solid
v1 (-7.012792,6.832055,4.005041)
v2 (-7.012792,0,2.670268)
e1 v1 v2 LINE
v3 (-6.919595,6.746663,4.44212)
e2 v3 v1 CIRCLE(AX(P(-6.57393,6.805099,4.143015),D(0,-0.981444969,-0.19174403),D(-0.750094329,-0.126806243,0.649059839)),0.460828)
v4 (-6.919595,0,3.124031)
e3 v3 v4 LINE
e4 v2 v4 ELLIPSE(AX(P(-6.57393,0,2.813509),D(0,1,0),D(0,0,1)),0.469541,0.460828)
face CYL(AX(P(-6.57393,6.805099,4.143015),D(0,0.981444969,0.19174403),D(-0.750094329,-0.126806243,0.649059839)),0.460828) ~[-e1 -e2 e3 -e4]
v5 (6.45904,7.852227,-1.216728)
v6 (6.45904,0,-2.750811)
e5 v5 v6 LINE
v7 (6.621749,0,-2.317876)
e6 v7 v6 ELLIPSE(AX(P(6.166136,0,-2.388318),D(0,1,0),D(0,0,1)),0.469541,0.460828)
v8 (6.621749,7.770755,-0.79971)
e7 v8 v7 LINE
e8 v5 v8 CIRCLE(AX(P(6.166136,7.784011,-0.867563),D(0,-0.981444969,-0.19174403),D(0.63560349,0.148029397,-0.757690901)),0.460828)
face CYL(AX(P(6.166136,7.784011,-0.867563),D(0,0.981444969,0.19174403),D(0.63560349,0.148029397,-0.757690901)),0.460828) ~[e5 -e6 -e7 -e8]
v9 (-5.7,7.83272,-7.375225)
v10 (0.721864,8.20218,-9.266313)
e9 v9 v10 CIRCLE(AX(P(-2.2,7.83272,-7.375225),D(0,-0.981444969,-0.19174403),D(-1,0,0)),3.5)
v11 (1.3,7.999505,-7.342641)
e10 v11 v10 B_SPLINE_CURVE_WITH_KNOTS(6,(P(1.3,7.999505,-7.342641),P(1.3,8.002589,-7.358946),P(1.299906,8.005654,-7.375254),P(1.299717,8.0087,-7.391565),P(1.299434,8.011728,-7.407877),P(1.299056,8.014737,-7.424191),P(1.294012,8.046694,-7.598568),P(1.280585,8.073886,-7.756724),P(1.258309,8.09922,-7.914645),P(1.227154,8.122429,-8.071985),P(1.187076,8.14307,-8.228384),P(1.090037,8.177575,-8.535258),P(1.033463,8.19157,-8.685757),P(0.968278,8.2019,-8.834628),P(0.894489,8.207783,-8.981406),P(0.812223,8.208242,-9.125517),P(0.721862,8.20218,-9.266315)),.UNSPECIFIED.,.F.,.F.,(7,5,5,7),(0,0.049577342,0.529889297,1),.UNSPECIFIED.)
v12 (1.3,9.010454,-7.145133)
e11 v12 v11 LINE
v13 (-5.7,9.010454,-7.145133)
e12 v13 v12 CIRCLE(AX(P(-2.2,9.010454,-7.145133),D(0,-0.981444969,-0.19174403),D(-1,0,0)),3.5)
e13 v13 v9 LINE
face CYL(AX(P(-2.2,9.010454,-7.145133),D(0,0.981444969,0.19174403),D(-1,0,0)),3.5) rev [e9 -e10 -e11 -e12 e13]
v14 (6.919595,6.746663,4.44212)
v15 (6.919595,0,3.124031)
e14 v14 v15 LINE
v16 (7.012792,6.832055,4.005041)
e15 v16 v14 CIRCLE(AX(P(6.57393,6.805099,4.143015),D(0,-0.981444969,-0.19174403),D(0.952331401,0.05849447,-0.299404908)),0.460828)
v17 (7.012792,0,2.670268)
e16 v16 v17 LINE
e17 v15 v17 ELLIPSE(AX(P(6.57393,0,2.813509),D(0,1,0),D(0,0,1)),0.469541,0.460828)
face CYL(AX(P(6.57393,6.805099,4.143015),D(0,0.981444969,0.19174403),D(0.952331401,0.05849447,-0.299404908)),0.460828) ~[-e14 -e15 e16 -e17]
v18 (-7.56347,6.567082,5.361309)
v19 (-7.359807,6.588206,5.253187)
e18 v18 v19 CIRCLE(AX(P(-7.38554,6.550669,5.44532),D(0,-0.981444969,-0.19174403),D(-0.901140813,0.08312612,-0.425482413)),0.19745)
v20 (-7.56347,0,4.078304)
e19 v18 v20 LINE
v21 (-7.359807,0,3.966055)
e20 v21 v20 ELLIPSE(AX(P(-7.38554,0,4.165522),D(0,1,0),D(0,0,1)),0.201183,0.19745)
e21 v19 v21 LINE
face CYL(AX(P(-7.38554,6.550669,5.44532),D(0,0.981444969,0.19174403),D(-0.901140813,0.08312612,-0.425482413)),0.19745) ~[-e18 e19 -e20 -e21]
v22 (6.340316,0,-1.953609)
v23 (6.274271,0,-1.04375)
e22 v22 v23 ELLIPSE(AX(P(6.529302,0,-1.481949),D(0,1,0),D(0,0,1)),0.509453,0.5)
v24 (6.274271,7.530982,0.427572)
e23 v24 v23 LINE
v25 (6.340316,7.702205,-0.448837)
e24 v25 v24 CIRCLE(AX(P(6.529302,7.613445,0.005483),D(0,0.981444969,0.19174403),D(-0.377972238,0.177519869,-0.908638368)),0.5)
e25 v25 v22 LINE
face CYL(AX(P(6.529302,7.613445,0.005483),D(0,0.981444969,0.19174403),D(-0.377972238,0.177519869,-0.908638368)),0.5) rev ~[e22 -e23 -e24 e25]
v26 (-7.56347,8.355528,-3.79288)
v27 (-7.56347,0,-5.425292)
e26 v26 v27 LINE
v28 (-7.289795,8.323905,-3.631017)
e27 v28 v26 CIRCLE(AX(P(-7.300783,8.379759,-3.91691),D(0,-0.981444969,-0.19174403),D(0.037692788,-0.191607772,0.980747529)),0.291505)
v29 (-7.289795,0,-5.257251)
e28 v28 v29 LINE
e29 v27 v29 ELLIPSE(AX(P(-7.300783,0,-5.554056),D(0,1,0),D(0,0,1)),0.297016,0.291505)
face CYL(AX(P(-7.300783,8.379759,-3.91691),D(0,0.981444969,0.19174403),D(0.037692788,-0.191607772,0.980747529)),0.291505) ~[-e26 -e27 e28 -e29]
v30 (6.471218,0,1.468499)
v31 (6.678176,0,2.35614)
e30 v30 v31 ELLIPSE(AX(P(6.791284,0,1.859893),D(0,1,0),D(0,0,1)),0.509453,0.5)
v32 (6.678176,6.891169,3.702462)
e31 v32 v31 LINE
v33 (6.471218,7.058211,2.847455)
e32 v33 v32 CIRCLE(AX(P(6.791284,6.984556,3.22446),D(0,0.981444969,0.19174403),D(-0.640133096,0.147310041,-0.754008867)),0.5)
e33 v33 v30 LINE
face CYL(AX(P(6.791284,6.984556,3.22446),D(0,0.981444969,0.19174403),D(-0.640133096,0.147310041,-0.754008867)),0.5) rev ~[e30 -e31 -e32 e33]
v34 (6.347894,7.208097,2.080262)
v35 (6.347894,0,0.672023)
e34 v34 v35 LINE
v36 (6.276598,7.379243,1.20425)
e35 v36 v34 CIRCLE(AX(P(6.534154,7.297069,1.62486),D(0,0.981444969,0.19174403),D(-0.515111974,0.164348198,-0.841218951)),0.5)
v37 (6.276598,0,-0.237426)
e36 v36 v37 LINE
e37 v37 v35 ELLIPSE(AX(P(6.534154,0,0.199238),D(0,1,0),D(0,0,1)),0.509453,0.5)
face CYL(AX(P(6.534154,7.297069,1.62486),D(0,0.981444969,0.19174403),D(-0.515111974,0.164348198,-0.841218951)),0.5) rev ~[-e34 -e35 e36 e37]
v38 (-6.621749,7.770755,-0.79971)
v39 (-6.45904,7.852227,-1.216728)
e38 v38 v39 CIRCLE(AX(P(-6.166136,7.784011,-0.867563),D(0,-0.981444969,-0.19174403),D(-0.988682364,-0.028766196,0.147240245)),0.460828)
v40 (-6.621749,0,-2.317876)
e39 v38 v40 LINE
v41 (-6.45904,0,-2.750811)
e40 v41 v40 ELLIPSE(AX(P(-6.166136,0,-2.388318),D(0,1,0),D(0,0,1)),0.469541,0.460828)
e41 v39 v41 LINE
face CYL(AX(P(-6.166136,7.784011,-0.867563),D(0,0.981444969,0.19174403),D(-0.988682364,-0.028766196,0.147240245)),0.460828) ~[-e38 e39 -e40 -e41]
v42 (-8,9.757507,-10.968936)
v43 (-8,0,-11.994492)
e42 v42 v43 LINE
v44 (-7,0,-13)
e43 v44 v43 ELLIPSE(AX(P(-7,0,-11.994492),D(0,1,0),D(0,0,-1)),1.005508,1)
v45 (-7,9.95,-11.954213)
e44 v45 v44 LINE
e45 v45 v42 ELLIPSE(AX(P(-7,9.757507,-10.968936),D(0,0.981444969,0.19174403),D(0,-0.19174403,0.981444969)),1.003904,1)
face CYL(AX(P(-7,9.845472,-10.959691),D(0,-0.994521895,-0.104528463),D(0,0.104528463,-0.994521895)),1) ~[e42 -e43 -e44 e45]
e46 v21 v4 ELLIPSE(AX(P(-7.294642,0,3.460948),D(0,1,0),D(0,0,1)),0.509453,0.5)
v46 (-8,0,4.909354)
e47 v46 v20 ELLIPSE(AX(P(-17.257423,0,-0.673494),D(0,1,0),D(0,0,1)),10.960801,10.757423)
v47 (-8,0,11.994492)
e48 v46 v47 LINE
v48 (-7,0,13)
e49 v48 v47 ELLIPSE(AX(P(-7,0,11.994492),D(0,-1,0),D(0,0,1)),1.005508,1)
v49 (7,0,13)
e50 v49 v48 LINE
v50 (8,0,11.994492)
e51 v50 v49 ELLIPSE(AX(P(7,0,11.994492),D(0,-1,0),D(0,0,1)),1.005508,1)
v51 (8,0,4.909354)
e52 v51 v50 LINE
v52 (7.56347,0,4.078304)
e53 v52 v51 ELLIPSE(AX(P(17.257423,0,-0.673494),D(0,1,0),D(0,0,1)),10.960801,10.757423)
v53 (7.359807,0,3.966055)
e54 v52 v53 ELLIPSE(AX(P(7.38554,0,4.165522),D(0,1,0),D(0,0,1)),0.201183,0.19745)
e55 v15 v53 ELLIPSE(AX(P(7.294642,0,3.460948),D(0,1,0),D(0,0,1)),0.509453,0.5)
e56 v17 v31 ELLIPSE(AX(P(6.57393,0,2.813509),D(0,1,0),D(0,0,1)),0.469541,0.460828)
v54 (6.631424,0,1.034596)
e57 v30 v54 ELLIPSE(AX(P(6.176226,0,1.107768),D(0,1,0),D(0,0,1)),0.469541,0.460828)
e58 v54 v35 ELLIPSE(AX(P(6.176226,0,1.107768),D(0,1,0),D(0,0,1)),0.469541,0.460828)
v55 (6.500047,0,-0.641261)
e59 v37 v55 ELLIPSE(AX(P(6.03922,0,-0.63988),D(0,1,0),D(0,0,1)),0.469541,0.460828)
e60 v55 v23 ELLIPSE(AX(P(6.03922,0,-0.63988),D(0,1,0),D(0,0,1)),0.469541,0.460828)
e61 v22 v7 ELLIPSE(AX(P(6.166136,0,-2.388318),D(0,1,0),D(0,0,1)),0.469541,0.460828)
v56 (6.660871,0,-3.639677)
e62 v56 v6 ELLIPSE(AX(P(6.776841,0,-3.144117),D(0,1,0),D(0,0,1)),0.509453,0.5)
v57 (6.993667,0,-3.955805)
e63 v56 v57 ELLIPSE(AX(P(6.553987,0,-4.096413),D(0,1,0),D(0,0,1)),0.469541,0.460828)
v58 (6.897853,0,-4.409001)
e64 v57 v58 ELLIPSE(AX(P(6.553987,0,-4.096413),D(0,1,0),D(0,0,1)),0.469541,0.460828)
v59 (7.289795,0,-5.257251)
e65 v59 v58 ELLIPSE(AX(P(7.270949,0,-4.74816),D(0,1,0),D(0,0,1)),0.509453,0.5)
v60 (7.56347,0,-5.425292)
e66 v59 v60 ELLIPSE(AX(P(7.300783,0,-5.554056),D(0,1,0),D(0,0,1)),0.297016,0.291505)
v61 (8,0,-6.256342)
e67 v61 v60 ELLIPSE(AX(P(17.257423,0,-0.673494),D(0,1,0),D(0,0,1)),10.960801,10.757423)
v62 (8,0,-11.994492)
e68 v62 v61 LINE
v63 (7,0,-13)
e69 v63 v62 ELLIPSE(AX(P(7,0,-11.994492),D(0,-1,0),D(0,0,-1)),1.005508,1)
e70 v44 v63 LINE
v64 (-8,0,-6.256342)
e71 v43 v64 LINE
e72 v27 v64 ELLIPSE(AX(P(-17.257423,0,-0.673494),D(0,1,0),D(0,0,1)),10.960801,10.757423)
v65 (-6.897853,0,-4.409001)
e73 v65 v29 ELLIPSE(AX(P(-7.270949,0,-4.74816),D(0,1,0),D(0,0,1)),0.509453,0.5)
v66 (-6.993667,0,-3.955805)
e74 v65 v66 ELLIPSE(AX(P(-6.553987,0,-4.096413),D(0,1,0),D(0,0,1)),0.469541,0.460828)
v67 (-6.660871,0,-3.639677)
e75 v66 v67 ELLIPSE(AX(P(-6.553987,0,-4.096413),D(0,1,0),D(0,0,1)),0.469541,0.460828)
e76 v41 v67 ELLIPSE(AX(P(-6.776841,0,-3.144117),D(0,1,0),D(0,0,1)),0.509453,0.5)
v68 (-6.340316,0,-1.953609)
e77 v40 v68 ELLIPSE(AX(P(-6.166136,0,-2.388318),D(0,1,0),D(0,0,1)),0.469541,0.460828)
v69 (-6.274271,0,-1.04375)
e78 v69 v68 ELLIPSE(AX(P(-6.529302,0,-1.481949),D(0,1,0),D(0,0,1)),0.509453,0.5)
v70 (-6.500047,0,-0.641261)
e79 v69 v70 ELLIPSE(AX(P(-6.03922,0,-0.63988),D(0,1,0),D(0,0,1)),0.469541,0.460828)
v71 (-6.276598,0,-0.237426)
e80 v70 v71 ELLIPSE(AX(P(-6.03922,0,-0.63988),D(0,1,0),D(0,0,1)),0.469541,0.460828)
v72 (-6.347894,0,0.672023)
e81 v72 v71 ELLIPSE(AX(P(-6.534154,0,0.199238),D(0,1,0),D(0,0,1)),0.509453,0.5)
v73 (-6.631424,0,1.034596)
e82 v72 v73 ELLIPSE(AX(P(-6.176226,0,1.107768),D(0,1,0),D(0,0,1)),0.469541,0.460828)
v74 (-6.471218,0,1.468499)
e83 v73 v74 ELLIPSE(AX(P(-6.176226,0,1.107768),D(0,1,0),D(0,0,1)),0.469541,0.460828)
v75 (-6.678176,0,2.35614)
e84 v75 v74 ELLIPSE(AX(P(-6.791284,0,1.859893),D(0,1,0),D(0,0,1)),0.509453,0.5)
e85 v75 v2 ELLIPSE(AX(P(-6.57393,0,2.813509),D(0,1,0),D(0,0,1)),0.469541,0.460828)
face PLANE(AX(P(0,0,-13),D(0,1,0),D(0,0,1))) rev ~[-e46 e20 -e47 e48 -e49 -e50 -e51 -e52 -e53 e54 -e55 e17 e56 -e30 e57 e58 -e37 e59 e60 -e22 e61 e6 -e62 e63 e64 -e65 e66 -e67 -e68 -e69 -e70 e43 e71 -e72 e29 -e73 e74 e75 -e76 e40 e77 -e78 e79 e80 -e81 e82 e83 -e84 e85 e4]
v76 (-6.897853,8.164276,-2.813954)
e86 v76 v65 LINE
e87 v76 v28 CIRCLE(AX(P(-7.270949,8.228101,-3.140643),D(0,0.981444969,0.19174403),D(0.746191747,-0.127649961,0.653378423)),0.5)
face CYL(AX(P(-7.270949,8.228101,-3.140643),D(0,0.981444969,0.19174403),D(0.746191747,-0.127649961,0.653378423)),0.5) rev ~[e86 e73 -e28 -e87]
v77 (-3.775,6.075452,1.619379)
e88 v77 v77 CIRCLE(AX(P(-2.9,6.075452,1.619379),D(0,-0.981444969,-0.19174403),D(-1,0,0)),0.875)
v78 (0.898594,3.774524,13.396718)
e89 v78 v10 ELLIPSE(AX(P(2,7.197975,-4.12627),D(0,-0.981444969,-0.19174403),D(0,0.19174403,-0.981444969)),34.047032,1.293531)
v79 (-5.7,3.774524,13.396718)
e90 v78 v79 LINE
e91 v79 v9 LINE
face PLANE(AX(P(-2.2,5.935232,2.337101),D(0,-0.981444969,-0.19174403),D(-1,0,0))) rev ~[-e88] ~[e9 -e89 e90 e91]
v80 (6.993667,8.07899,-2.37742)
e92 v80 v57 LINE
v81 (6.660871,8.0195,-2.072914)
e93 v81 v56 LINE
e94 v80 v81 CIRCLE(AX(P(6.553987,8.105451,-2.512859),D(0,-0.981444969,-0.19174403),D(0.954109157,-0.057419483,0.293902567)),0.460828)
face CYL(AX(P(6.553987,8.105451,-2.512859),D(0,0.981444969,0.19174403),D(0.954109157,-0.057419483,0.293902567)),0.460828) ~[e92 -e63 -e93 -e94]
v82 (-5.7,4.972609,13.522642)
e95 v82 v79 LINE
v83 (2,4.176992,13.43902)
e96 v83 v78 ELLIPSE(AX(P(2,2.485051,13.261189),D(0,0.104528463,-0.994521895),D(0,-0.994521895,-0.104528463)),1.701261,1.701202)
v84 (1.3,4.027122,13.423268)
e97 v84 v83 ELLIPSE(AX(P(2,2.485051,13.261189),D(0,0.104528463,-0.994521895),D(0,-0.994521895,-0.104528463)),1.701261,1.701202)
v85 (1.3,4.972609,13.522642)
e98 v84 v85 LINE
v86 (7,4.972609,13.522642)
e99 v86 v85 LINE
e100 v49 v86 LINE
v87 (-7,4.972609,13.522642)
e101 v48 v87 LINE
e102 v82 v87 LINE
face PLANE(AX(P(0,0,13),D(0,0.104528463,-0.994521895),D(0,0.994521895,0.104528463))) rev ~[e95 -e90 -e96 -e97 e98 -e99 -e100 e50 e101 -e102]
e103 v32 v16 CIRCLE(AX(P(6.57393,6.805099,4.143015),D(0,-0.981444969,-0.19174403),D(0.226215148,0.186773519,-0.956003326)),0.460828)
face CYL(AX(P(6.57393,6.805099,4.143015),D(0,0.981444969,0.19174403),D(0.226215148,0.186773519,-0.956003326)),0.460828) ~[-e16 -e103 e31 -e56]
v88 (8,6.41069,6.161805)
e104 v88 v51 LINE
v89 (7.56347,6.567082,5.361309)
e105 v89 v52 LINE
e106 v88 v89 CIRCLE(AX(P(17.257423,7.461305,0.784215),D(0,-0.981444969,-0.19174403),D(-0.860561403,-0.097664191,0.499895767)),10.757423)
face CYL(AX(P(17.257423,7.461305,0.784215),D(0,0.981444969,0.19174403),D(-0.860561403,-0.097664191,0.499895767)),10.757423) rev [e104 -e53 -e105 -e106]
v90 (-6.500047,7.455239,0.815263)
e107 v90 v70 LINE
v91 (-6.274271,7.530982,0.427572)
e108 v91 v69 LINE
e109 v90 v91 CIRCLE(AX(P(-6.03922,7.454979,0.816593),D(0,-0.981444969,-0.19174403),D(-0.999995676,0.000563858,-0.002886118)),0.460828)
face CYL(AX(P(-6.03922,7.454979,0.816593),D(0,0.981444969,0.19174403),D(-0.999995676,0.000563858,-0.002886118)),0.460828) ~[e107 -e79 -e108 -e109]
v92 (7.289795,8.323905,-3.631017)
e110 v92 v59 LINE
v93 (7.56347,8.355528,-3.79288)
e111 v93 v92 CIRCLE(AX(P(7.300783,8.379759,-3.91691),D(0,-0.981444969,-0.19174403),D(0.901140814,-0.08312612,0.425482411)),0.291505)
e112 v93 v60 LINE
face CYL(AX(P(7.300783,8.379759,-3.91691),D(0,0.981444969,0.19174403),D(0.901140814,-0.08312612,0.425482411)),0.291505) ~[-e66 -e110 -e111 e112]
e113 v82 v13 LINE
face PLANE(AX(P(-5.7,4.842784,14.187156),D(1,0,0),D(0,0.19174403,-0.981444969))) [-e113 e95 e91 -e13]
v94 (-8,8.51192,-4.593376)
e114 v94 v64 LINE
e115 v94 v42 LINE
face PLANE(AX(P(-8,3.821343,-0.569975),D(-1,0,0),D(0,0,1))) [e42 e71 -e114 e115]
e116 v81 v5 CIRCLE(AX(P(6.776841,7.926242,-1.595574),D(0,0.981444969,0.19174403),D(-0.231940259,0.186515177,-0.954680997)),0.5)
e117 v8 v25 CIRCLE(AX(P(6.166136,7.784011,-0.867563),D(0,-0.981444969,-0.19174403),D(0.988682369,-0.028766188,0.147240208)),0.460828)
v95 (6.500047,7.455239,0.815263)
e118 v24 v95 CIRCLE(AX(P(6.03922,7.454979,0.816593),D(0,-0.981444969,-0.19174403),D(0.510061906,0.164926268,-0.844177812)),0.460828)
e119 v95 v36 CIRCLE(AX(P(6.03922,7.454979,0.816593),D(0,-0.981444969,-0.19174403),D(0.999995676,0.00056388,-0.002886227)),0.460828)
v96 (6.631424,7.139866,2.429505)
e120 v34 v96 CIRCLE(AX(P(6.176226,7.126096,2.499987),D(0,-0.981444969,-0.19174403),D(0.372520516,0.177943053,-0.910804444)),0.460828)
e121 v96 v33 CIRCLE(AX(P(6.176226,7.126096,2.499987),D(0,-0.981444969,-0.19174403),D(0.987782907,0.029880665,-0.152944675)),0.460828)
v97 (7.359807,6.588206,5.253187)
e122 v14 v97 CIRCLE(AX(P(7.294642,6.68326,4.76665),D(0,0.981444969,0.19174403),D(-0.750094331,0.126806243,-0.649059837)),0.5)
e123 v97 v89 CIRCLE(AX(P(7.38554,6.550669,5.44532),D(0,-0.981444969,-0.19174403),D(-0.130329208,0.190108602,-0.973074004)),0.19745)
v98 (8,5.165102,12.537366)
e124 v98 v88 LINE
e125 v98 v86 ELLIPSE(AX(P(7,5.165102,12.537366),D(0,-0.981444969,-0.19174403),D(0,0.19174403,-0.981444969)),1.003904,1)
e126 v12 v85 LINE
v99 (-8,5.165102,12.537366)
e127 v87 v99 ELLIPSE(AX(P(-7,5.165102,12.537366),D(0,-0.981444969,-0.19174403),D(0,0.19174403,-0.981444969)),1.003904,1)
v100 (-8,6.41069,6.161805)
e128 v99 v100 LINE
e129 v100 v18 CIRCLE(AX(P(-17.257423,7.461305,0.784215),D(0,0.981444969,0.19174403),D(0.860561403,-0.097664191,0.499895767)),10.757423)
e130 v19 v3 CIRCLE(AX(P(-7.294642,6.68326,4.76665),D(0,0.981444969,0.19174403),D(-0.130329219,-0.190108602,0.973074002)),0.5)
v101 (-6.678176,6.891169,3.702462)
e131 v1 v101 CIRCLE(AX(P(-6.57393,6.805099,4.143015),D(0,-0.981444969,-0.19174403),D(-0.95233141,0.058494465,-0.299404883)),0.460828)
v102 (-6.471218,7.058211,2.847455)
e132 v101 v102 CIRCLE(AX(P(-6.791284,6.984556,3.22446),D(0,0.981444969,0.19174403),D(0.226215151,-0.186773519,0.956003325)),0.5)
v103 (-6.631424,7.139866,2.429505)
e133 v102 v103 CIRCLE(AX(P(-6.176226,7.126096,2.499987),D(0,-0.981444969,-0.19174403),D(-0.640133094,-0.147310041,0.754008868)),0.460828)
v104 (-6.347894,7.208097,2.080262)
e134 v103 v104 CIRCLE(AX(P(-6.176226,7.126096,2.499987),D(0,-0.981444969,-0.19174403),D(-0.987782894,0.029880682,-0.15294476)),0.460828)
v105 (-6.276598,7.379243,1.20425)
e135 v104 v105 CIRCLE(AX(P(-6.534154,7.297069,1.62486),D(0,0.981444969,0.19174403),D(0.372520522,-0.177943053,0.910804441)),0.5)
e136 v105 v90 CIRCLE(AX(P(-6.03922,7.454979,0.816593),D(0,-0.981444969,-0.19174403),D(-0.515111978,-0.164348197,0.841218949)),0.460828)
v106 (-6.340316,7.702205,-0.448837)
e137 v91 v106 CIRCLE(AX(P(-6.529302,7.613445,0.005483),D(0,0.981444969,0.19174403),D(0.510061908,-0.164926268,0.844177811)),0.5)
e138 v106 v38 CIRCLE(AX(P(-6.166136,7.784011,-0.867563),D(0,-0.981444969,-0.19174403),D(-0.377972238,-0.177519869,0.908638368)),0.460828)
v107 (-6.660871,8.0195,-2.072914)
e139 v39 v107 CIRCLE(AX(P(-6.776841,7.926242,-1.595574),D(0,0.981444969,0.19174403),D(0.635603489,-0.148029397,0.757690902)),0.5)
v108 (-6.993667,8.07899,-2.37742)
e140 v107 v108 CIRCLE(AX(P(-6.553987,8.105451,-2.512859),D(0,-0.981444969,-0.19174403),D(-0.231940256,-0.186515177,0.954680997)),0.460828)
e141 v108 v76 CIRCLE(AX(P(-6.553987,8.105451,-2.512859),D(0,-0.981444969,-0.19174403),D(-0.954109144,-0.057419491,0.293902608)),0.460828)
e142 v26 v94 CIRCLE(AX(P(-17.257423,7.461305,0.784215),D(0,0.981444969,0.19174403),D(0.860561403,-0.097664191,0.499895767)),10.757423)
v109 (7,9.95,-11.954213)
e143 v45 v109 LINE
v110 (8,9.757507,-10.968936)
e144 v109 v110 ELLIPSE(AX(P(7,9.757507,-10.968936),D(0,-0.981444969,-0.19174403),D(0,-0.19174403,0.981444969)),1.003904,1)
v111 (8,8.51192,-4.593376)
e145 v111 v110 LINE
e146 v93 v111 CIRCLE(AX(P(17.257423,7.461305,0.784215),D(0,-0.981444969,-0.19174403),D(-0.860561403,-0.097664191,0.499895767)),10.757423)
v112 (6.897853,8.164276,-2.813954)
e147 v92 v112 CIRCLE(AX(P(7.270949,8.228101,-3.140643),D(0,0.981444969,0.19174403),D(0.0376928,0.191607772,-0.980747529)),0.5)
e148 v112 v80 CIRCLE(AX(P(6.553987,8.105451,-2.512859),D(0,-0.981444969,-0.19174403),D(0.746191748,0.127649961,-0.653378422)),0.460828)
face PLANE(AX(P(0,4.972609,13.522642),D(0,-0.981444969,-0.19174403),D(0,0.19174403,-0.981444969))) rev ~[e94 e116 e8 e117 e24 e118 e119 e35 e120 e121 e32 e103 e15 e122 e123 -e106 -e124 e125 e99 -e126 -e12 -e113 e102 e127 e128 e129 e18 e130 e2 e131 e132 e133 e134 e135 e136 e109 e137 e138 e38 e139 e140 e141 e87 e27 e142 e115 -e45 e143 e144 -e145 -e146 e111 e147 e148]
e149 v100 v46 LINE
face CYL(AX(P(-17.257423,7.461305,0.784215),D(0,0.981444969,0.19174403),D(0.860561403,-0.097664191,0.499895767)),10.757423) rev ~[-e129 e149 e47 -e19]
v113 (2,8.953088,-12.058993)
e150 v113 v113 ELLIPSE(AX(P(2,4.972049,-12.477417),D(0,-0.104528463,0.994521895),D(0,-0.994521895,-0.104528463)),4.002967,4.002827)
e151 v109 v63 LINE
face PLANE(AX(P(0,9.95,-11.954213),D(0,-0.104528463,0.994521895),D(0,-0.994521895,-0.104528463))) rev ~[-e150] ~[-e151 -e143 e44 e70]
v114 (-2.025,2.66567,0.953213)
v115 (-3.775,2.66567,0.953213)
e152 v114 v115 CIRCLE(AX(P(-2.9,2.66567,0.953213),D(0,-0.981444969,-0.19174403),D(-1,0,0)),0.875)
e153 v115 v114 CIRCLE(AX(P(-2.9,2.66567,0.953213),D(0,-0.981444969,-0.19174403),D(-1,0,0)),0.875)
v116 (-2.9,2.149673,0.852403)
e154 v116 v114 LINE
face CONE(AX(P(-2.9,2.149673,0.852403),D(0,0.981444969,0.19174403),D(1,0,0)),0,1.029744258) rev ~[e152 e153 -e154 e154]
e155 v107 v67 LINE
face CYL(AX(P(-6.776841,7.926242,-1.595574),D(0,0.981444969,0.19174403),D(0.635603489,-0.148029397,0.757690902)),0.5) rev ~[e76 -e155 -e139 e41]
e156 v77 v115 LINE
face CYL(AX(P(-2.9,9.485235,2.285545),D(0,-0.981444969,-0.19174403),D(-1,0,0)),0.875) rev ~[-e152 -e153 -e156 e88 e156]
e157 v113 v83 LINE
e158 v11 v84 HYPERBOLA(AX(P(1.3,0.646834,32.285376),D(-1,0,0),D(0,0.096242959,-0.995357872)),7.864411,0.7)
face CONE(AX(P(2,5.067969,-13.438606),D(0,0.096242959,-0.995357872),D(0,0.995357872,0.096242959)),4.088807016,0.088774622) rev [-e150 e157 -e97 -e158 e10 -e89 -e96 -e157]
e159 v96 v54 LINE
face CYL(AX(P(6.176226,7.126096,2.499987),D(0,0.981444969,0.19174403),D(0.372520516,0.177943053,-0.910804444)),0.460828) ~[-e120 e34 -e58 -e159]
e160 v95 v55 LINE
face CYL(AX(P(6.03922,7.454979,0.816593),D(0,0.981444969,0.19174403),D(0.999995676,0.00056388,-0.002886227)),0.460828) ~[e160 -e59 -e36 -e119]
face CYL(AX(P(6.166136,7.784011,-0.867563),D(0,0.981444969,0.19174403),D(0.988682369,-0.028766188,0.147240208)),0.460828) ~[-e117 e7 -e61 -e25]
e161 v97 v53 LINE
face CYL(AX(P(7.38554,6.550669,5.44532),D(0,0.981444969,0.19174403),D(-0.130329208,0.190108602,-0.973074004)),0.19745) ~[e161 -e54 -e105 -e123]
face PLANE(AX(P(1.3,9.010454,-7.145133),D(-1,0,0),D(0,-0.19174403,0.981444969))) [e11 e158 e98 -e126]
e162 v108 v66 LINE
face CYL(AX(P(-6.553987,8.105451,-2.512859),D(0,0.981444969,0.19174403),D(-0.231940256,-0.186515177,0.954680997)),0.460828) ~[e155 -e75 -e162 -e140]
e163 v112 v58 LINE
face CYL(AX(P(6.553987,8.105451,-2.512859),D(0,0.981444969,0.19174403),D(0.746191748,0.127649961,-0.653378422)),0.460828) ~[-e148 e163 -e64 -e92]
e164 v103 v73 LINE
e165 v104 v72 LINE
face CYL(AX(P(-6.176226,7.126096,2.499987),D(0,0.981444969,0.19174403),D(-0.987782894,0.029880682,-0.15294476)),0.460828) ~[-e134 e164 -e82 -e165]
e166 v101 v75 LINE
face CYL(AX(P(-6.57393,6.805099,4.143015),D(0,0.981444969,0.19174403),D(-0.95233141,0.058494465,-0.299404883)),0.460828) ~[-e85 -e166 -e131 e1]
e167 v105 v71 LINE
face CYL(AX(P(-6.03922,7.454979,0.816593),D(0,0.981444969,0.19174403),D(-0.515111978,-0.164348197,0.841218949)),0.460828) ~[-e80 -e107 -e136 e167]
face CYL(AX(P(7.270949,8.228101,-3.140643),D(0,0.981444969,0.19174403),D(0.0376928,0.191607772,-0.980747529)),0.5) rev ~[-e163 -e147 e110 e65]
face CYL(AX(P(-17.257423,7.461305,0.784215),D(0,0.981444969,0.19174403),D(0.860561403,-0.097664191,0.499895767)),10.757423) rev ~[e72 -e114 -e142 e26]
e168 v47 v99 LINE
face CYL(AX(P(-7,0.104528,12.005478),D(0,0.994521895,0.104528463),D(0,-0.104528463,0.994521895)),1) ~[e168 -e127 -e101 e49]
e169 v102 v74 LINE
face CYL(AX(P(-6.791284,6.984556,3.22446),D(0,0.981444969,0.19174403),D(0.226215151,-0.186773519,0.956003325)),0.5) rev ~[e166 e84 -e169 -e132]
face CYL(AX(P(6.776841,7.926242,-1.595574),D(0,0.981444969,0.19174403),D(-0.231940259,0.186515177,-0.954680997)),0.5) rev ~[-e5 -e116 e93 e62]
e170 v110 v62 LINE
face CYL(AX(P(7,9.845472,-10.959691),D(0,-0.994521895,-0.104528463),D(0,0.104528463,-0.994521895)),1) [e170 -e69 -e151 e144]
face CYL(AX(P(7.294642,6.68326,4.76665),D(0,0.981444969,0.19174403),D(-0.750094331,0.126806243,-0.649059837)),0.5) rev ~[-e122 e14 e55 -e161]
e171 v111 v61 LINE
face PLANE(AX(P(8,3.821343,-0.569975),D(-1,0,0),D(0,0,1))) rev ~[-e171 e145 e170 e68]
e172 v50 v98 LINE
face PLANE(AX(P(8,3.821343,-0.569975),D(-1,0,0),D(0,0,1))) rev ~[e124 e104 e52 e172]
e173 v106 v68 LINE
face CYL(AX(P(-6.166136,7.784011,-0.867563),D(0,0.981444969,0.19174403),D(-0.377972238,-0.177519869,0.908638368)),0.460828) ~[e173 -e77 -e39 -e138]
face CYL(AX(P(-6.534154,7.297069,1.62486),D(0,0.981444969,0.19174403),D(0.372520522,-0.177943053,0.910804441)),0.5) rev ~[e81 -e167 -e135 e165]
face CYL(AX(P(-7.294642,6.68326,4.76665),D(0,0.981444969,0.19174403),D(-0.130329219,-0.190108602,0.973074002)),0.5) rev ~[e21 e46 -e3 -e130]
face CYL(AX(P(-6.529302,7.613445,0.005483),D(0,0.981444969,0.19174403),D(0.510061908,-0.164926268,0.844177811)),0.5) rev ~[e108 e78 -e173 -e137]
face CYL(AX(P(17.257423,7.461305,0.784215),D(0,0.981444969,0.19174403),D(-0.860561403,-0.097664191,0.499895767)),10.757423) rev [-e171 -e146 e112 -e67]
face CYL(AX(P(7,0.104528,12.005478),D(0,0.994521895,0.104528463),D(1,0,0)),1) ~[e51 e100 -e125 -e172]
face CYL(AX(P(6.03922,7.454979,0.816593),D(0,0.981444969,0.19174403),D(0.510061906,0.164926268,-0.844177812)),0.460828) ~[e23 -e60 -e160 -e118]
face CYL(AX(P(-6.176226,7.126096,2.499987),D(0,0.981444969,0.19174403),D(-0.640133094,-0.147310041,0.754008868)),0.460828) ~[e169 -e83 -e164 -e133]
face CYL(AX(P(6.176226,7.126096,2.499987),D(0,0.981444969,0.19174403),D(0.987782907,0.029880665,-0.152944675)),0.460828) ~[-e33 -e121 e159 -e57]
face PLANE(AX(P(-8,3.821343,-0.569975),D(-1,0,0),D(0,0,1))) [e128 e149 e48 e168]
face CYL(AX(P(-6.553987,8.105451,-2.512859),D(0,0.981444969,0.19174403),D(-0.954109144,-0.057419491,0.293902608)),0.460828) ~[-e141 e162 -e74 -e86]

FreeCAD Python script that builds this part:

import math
import FreeCAD as App
import Part
import Sketcher
Q = App.Units.Quantity


def edges_at(feature, points):
    """Names of the edges that pass closest to the given points."""
    edges = feature.Shape.Edges
    near = lambda p: min(range(len(edges)), key=lambda i: edges[i].distToShape(Part.Vertex(*p))[0])
    return sorted({f"Edge{near(p) + 1}" for p in points})

doc = App.newDocument("Part")
params = doc.addObject("Spreadsheet::Sheet", "Params")
for row, (alias, value) in enumerate([
    ("sketch1_height", "26 mm"),
    ("sketch1_length", "5 mm"),
    ("pad1_length", "16 mm"),
    ("sketch2_radius", "3.5 mm"),
    ("pocket1_length", "1.2 mm"),
    ("fillet_radius", "1 mm"),
    ("groove_angle", "360 deg"),
    ("sketch5_diameter", "1.75 mm"),
    ("hole_diameter", "1.75 mm"),
    ("hole_depth", "3.474247 mm"),
    ("sketch6_radius", "0.5 mm"),
], start=1):
    params.set(f"A{row}", alias)
    params.set(f"B{row}", "=" + value)
    params.setAlias(f"B{row}", alias)

body = doc.addObject("PartDesign::Body", "Body")

sketch1 = doc.addObject("Sketcher::SketchObject", "Sketch")
body.addObject(sketch1)
sketch1.AttachmentSupport = (doc.YZ_Plane, [""])
sketch1.MapMode = "FlatFace"
sketch1.addGeometry([
    Part.LineSegment(App.Vector(0, 13, 0), App.Vector(0, -13, 0)),
    Part.LineSegment(App.Vector(0, -13, 0), App.Vector(9.95, -11.954213, 0)),
    Part.LineSegment(App.Vector(9.95, -11.954213, 0), App.Vector(4.972609, 13.522642, 0)),
    Part.LineSegment(App.Vector(4.972609, 13.522642, 0), App.Vector(0, 13, 0)),
], False)
sketch1.addConstraint([
    Sketcher.Constraint("Coincident", 0, 2, 1, 1),
    Sketcher.Constraint("Coincident", 1, 2, 2, 1),
    Sketcher.Constraint("Coincident", 2, 2, 3, 1),
    Sketcher.Constraint("Coincident", 3, 2, 0, 1),
    Sketcher.Constraint("Vertical", 0),
    Sketcher.Constraint("Symmetric", 0, 2, 3, 2, -1, 1),
    Sketcher.Constraint("Parallel", 1, 3),
    Sketcher.Constraint("DistanceY", 0, 2, 0, 1, Q("26 mm")),
    Sketcher.Constraint("Angle", 1, Q("6 deg")),
    Sketcher.Constraint("Distance", 3, Q("5 mm")),
    Sketcher.Constraint("DistanceX", -1, 1, 1, 2, Q("9.95 mm")),
])
sketch1.setExpression("Constraints[7]", "Params.sketch1_height")
sketch1.setExpression("Constraints[9]", "Params.sketch1_length")
pad1 = doc.addObject("PartDesign::Pad", "Pad")
body.addObject(pad1)
pad1.Profile = sketch1
pad1.setExpression("Length", "Params.pad1_length")
pad1.Midplane = True

sketch2 = doc.addObject("Sketcher::SketchObject", "Sketch001")
body.addObject(sketch2)
sketch2.Placement = App.Placement(App.Vector(0, 7.334563, 1.432947), App.Rotation(App.Vector(1, 0, 0), App.Vector(0, 0.19174403, -0.981444969), App.Vector(0, 0.981444969, 0.19174403), "ZXY"))
sketch2.addGeometry([
    Part.LineSegment(App.Vector(-5.7, 8.740255, 0), App.Vector(-5.7, -12.995338, 0)),
    Part.LineSegment(App.Vector(-5.7, -12.995338, 0), App.Vector(1.3, -12.995338, 0)),
    Part.LineSegment(App.Vector(1.3, -12.995338, 0), App.Vector(1.3, 8.740255, 0)),
    Part.ArcOfCircle(Part.Circle(App.Vector(-2.2, 8.740255, 0), App.Vector(0, 0, 1), 3.5), math.radians(0), math.radians(180)),
], False)
sketch2.addConstraint([
    Sketcher.Constraint("Coincident", 0, 2, 1, 1),
    Sketcher.Constraint("Coincident", 1, 2, 2, 1),
    Sketcher.Constraint("Tangent", 2, 2, 3, 1),
    Sketcher.Constraint("Tangent", 3, 2, 0, 1),
    Sketcher.Constraint("Vertical", 0),
    Sketcher.Constraint("Horizontal", 1),
    Sketcher.Constraint("Vertical", 2),
    Sketcher.Constraint("Radius", 3, Q("3.5 mm")),
    Sketcher.Constraint("DistanceX", 3, 3, -1, 1, Q("2.2 mm")),
    Sketcher.Constraint("DistanceY", 0, 2, 0, 1, Q("21.735593 mm")),
    Sketcher.Constraint("DistanceY", -1, 1, 3, 3, Q("8.740255 mm")),
])
sketch2.setExpression("Constraints[7]", "Params.sketch2_radius")
pocket1 = doc.addObject("PartDesign::Pocket", "Pocket")
body.addObject(pocket1)
pocket1.Profile = sketch2
pocket1.setExpression("Length", "Params.pocket1_length")

sketch3 = doc.addObject("Sketcher::SketchObject", "Sketch002")
body.addObject(sketch3)
sketch3.Placement = App.Placement(App.Vector(0, 7.334563, 1.432947), App.Rotation(App.Vector(1, 0, 0), App.Vector(0, 0.19174403, -0.981444969), App.Vector(0, 0.981444969, 0.19174403), "ZXY"))
sketch3.addGeometry([
    Part.LineSegment(App.Vector(-8, 6.140255, 0), App.Vector(-8, -4.818261, 0)),
    Part.ArcOfCircle(Part.Circle(App.Vector(-17.257423, 0.660997, 0), App.Vector(0, 0, 1), 10.757423), math.radians(-30.620324), math.radians(30.620324)),
    Part.LineSegment(App.Vector(8, -4.818261, 0), App.Vector(8, 6.140255, 0)),
    Part.ArcOfCircle(Part.Circle(App.Vector(17.257423, 0.660997, 0), App.Vector(0, 0, 1), 10.757423), math.radians(149.379676), math.radians(210.620324)),
], False)
sketch3.addConstraint([
    Sketcher.Constraint("Coincident", 0, 1, 1, 2),
    Sketcher.Constraint("Coincident", 1, 1, 0, 2),
    Sketcher.Constraint("Coincident", 2, 1, 3, 2),
    Sketcher.Constraint("Coincident", 3, 1, 2, 2),
    Sketcher.Constraint("Vertical", 0),
    Sketcher.Constraint("Vertical", 2),
    Sketcher.Constraint("Equal", 1, 3),
    Sketcher.Constraint("Symmetric", 1, 3, 3, 3, -2),
    Sketcher.Constraint("Horizontal", 1, 1, 2, 1),
    Sketcher.Constraint("DistanceX", 0, 1, -1, 1, Q("8 mm")),
    Sketcher.Constraint("Radius", 1, Q("10.757423 mm")),
    Sketcher.Constraint("DistanceY", 0, 2, 0, 1, Q("10.958516 mm")),
    Sketcher.Constraint("DistanceY", 1, 1, -1, 1, Q("4.818261 mm")),
])
pocket2 = doc.addObject("PartDesign::Pocket", "Pocket001")
body.addObject(pocket2)
pocket2.Profile = sketch3
pocket2.Type = "ThroughAll"
doc.recompute()

fillet = doc.addObject("PartDesign::Fillet", "Fillet")
body.addObject(fillet)
fillet.Base = (pocket2, edges_at(pocket2, [
    (8, 2.486, 13.261),
    (8, 4.975, -12.477),
    (-8, 2.486, 13.261),
    (-8, 4.975, -12.477),
]))
fillet.setExpression("Radius", "Params.fillet_radius")

sketch4 = doc.addObject("Sketcher::SketchObject", "Sketch003")
body.addObject(sketch4)
sketch4.AttachmentSupport = (doc.YZ_Plane, [""])
sketch4.MapMode = "FlatFace"
sketch4.AttachmentOffset = App.Placement(App.Vector(0, 0, 2), App.Rotation())
sketch4.addGeometry([
    Part.LineSegment(App.Vector(9.137795, -13.045087, 0), App.Vector(3.992284, 14.425114, 0)),
    Part.LineSegment(App.Vector(3.992284, 14.425114, 0), App.Vector(2.631556, 14.282096, 0)),
    Part.LineSegment(App.Vector(2.631556, 14.282096, 0), App.Vector(2.390058, 14.256714, 0)),
    Part.LineSegment(App.Vector(2.390058, 14.256714, 0), App.Vector(5.071246, -13.472499, 0)),
    Part.LineSegment(App.Vector(5.071246, -13.472499, 0), App.Vector(9.137795, -13.045087, 0)),
], False)
sketch4.addGeometry(Part.LineSegment(App.Vector(2.388767, 14.270067, 0), App.Vector(5.071246, -13.472499, 0)), True)
sketch4.addConstraint([
    Sketcher.Constraint("Coincident", 0, 2, 1, 1),
    Sketcher.Constraint("Coincident", 1, 2, 2, 1),
    Sketcher.Constraint("Coincident", 2, 2, 3, 1),
    Sketcher.Constraint("Coincident", 3, 2, 4, 1),
    Sketcher.Constraint("Coincident", 4, 2, 0, 1),
    Sketcher.Constraint("Coincident", 5, 2, 3, 2),
    Sketcher.Constraint("Parallel", 1, 2),
    Sketcher.Constraint("Parallel", 2, 4),
    Sketcher.Constraint("Parallel", 3, 5),
    Sketcher.Constraint("Angle", 1, Q("-174 deg")),
    Sketcher.Constraint("DistanceY", 3, 2, -1, 1, Q("13.472499 mm")),
    Sketcher.Constraint("DistanceY", 2, 2, 0, 2, Q("0.168401 mm")),
    Sketcher.Constraint("DistanceY", 4, 2, 0, 2, Q("27.470202 mm")),
    Sketcher.Constraint("Distance", 4, Q("4.088949 mm")),
    Sketcher.Constraint("Distance", 5, Q("27.871951 mm")),
    Sketcher.Constraint("DistanceX", -1, 1, 2, 2, Q("2.390058 mm")),
    Sketcher.Constraint("DistanceY", 1, 2, 0, 2, Q("0.143018 mm")),
    Sketcher.Constraint("DistanceX", 1, 2, 3, 2, Q("2.43969 mm")),
])
groove = doc.addObject("PartDesign::Groove", "Groove")
body.addObject(groove)
groove.Profile = sketch4
groove.ReferenceAxis = (sketch4, ["Axis0"])
groove.setExpression("Angle", "Params.groove_angle")

sketch5 = doc.addObject("Sketcher::SketchObject", "Sketch004")
body.addObject(sketch5)
sketch5.Placement = App.Placement(App.Vector(0, 6.156829, 1.202854), App.Rotation(App.Vector(1, 0, 0), App.Vector(0, 0.19174403, -0.981444969), App.Vector(0, 0.981444969, 0.19174403), "ZXY"))
sketch5.addGeometry(Part.Circle(App.Vector(-2.9, -0.424399, 0), App.Vector(0, 0, 1), 0.875), False)
sketch5.addConstraint([
    Sketcher.Constraint("Diameter", 0, Q("1.75 mm")),
    Sketcher.Constraint("DistanceX", 0, 3, -1, 1, Q("2.9 mm")),
    Sketcher.Constraint("DistanceY", 0, 3, -1, 1, Q("0.424399 mm")),
])
sketch5.setExpression("Constraints[0]", "Params.sketch5_diameter")
doc.recompute()
hole = doc.addObject("PartDesign::Hole", "Hole")
body.addObject(hole)
hole.Profile = sketch5
hole.ThreadType = "None"
hole.setExpression("Diameter", "Params.hole_diameter")
hole.DepthType = "Dimension"
hole.setExpression("Depth", "Params.hole_depth")
hole.DrillPoint = "Angled"
hole.DrillPointAngle = 118

sketch6 = doc.addObject("Sketcher::SketchObject", "Sketch005")
body.addObject(sketch6)
sketch6.Placement = App.Placement(App.Vector(0, 7.334563, 1.432947), App.Rotation(App.Vector(1, 0, 0), App.Vector(0, 0.19174403, -0.981444969), App.Vector(0, 0.981444969, 0.19174403), "ZXY"))
sketch6.addGeometry([
    Part.ArcOfCircle(Part.Circle(App.Vector(-7.300783, 5.451, 0), App.Vector(0, 0, 1), 0.291505), math.radians(-154.30843), math.radians(-87.839851)),
    Part.ArcOfCircle(Part.Circle(App.Vector(-17.257423, 0.660997, 0), App.Vector(0, 0, 1), 10.757423), math.radians(17.425117), math.radians(25.69157)),
    Part.ArcOfCircle(Part.Circle(App.Vector(-6.553987, 4.020404, 0), App.Vector(0, 0, 1), 0.460828), math.radians(138.261563), math.radians(197.425117)),
    Part.ArcOfCircle(Part.Circle(App.Vector(-7.270949, 4.660058, 0), App.Vector(0, 0, 1), 0.5), math.radians(-41.738437), math.radians(92.16015)),
    Part.ArcOfCircle(Part.Circle(App.Vector(-6.553987, 4.020404, 0), App.Vector(0, 0, 1), 0.460828), math.radians(-162.574883), math.radians(-103.41133)),
    Part.ArcOfCircle(Part.Circle(App.Vector(-17.257423, 0.660997, 0), App.Vector(0, 0, 1), 10.757423), math.radians(8.628312), math.radians(17.425117)),
    Part.ArcOfCircle(Part.Circle(App.Vector(-6.166136, 2.344003, 0), App.Vector(0, 0, 1), 0.460828), math.radians(129.464759), math.radians(188.628314)),
    Part.ArcOfCircle(Part.Circle(App.Vector(-6.776841, 3.085778, 0), App.Vector(0, 0, 1), 0.5), math.radians(-50.535241), math.radians(76.58867)),
    Part.ArcOfCircle(Part.Circle(App.Vector(-6.166136, 2.344003, 0), App.Vector(0, 0, 1), 0.460828), math.radians(-171.371686), math.radians(-112.208135)),
    Part.ArcOfCircle(Part.Circle(App.Vector(-17.257423, 0.660997, 0), App.Vector(0, 0, 1), 10.757423), math.radians(-0.168493), math.radians(8.628312)),
    Part.ArcOfCircle(Part.Circle(App.Vector(-6.03922, 0.628007, 0), App.Vector(0, 0, 1), 0.460828), math.radians(120.667953), math.radians(179.831511)),
    Part.ArcOfCircle(Part.Circle(App.Vector(-6.529302, 1.454452, 0), App.Vector(0, 0, 1), 0.5), math.radians(-59.332046), math.radians(67.791865)),
    Part.ArcOfCircle(Part.Circle(App.Vector(-6.03922, 0.628007, 0), App.Vector(0, 0, 1), 0.460828), math.radians(179.831511), math.radians(238.99506)),
    Part.ArcOfCircle(Part.Circle(App.Vector(-17.257423, 0.660997, 0), App.Vector(0, 0, 1), 10.757423), math.radians(-8.965298), math.radians(-0.168493)),
    Part.ArcOfCircle(Part.Circle(App.Vector(-6.176226, -1.087213, 0), App.Vector(0, 0, 1), 0.460828), math.radians(111.871149), math.radians(171.034697)),
    Part.ArcOfCircle(Part.Circle(App.Vector(-6.534154, -0.195541, 0), App.Vector(0, 0, 1), 0.5), math.radians(-68.128851), math.radians(58.99506)),
    Part.ArcOfCircle(Part.Circle(App.Vector(-6.176226, -1.087213, 0), App.Vector(0, 0, 1), 0.460828), math.radians(171.034698), math.radians(230.198255)),
    Part.ArcOfCircle(Part.Circle(App.Vector(-17.257423, 0.660997, 0), App.Vector(0, 0, 1), 10.757423), math.radians(-17.762103), math.radians(-8.965298)),
    Part.ArcOfCircle(Part.Circle(App.Vector(-6.57393, -2.761304, 0), App.Vector(0, 0, 1), 0.460828), math.radians(103.074343), math.radians(162.237903)),
    Part.ArcOfCircle(Part.Circle(App.Vector(-6.791284, -1.825383, 0), App.Vector(0, 0, 1), 0.5), math.radians(-76.925656), math.radians(50.198255)),
    Part.ArcOfCircle(Part.Circle(App.Vector(-6.57393, -2.761304, 0), App.Vector(0, 0, 1), 0.460828), math.radians(162.237903), math.radians(221.40145)),
    Part.ArcOfCircle(Part.Circle(App.Vector(-17.257423, 0.660997, 0), App.Vector(0, 0, 1), 10.757423), math.radians(-25.69157), math.radians(-17.762103)),
    Part.ArcOfCircle(Part.Circle(App.Vector(-7.38554, -4.088231, 0), App.Vector(0, 0, 1), 0.19745), math.radians(82.511384), math.radians(154.30843)),
    Part.ArcOfCircle(Part.Circle(App.Vector(-7.294642, -3.39673, 0), App.Vector(0, 0, 1), 0.5), math.radians(-97.488617), math.radians(41.40145)),
    Part.ArcOfCircle(Part.Circle(App.Vector(17.257423, 0.660997, 0), App.Vector(0, 0, 1), 10.757423), math.radians(-162.237897), math.radians(-154.30843)),
    Part.ArcOfCircle(Part.Circle(App.Vector(6.57393, -2.761304, 0), App.Vector(0, 0, 1), 0.460828), math.radians(-41.401451), math.radians(17.762099)),
    Part.ArcOfCircle(Part.Circle(App.Vector(7.294642, -3.39673, 0), App.Vector(0, 0, 1), 0.5), math.radians(138.59855), math.radians(277.488617)),
    Part.ArcOfCircle(Part.Circle(App.Vector(7.38554, -4.088231, 0), App.Vector(0, 0, 1), 0.19745), math.radians(25.69157), math.radians(97.488616)),
    Part.ArcOfCircle(Part.Circle(App.Vector(17.257423, 0.660997, 0), App.Vector(0, 0, 1), 10.757423), math.radians(-171.034702), math.radians(-162.237897)),
    Part.ArcOfCircle(Part.Circle(App.Vector(6.176226, -1.087213, 0), App.Vector(0, 0, 1), 0.460828), math.radians(-50.198255), math.radians(8.965297)),
    Part.ArcOfCircle(Part.Circle(App.Vector(6.791284, -1.825383, 0), App.Vector(0, 0, 1), 0.5), math.radians(129.801745), math.radians(256.925656)),
    Part.ArcOfCircle(Part.Circle(App.Vector(6.57393, -2.761304, 0), App.Vector(0, 0, 1), 0.460828), math.radians(17.762099), math.radians(76.925656)),
    Part.ArcOfCircle(Part.Circle(App.Vector(17.257423, 0.660997, 0), App.Vector(0, 0, 1), 10.757423), math.radians(-179.831507), math.radians(-171.034702)),
    Part.ArcOfCircle(Part.Circle(App.Vector(6.03922, 0.628007, 0), App.Vector(0, 0, 1), 0.460828), math.radians(-58.99506), math.radians(0.168495)),
    Part.ArcOfCircle(Part.Circle(App.Vector(6.534154, -0.195541, 0), App.Vector(0, 0, 1), 0.5), math.radians(121.00494), math.radians(248.128851)),
    Part.ArcOfCircle(Part.Circle(App.Vector(6.176226, -1.087213, 0), App.Vector(0, 0, 1), 0.460828), math.radians(8.965297), math.radians(68.128852)),
    Part.ArcOfCircle(Part.Circle(App.Vector(17.257423, 0.660997, 0), App.Vector(0, 0, 1), 10.757423), math.radians(171.371688), math.radians(180.168493)),
    Part.ArcOfCircle(Part.Circle(App.Vector(6.166136, 2.344003, 0), App.Vector(0, 0, 1), 0.460828), math.radians(-67.791865), math.radians(-8.628312)),
    Part.ArcOfCircle(Part.Circle(App.Vector(6.529302, 1.454452, 0), App.Vector(0, 0, 1), 0.5), math.radians(112.208135), math.radians(239.332046)),
    Part.ArcOfCircle(Part.Circle(App.Vector(6.03922, 0.628007, 0), App.Vector(0, 0, 1), 0.460828), math.radians(0.168495), math.radians(59.332047)),
    Part.ArcOfCircle(Part.Circle(App.Vector(17.257423, 0.660997, 0), App.Vector(0, 0, 1), 10.757423), math.radians(162.574883), math.radians(171.371688)),
    Part.ArcOfCircle(Part.Circle(App.Vector(6.553987, 4.020404, 0), App.Vector(0, 0, 1), 0.460828), math.radians(-76.588671), math.radians(-17.425115)),
    Part.ArcOfCircle(Part.Circle(App.Vector(6.776841, 3.085778, 0), App.Vector(0, 0, 1), 0.5), math.radians(103.41133), math.radians(230.535241)),
    Part.ArcOfCircle(Part.Circle(App.Vector(6.166136, 2.344003, 0), App.Vector(0, 0, 1), 0.460828), math.radians(-8.628312), math.radians(50.535241)),
    Part.ArcOfCircle(Part.Circle(App.Vector(7.300783, 5.451, 0), App.Vector(0, 0, 1), 0.291505), math.radians(-92.160149), math.radians(-25.69157)),
    Part.ArcOfCircle(Part.Circle(App.Vector(7.270949, 4.660058, 0), App.Vector(0, 0, 1), 0.5), math.radians(87.83985), math.radians(221.738437)),
    Part.ArcOfCircle(Part.Circle(App.Vector(6.553987, 4.020404, 0), App.Vector(0, 0, 1), 0.460828), math.radians(-17.425115), math.radians(41.738437)),
    Part.ArcOfCircle(Part.Circle(App.Vector(17.257423, 0.660997, 0), App.Vector(0, 0, 1), 10.757423), math.radians(154.30843), math.radians(162.574883)),
], False)
sketch6.addConstraint([
    Sketcher.Constraint("Tangent", 0, 1, 1, 2),
    Sketcher.Constraint("Tangent", 1, 1, 2, 2),
    Sketcher.Constraint("Tangent", 2, 1, 3, 1),
    Sketcher.Constraint("Tangent", 3, 2, 0, 2),
    Sketcher.Constraint("Tangent", 4, 1, 5, 2),
    Sketcher.Constraint("Tangent", 5, 1, 6, 2),
    Sketcher.Constraint("Tangent", 6, 1, 7, 1),
    Sketcher.Constraint("Tangent", 7, 2, 4, 2),
    Sketcher.Constraint("Tangent", 8, 1, 9, 2),
    Sketcher.Constraint("Tangent", 9, 1, 10, 2),
    Sketcher.Constraint("Tangent", 10, 1, 11, 1),
    Sketcher.Constraint("Tangent", 11, 2, 8, 2),
    Sketcher.Constraint("Tangent", 12, 1, 13, 2),
    Sketcher.Constraint("Tangent", 13, 1, 14, 2),
    Sketcher.Constraint("Tangent", 14, 1, 15, 1),
    Sketcher.Constraint("Tangent", 15, 2, 12, 2),
    Sketcher.Constraint("Tangent", 16, 1, 17, 2),
    Sketcher.Constraint("Tangent", 17, 1, 18, 2),
    Sketcher.Constraint("Tangent", 18, 1, 19, 1),
    Sketcher.Constraint("Tangent", 19, 2, 16, 2),
    Sketcher.Constraint("Tangent", 20, 1, 21, 2),
    Sketcher.Constraint("Tangent", 21, 1, 22, 2),
    Sketcher.Constraint("Tangent", 22, 1, 23, 1),
    Sketcher.Constraint("Tangent", 23, 2, 20, 2),
    Sketcher.Constraint("Tangent", 24, 1, 25, 2),
    Sketcher.Constraint("Tangent", 25, 1, 26, 1),
    Sketcher.Constraint("Tangent", 26, 2, 27, 2),
    Sketcher.Constraint("Tangent", 27, 1, 24, 2),
    Sketcher.Constraint("Tangent", 28, 1, 29, 2),
    Sketcher.Constraint("Tangent", 29, 1, 30, 1),
    Sketcher.Constraint("Tangent", 30, 2, 31, 2),
    Sketcher.Constraint("Tangent", 31, 1, 28, 2),
    Sketcher.Constraint("Tangent", 32, 1, 33, 2),
    Sketcher.Constraint("Tangent", 33, 1, 34, 1),
    Sketcher.Constraint("Tangent", 34, 2, 35, 2),
    Sketcher.Constraint("Tangent", 35, 1, 32, 2),
    Sketcher.Constraint("Tangent", 36, 1, 37, 2),
    Sketcher.Constraint("Tangent", 37, 1, 38, 1),
    Sketcher.Constraint("Tangent", 38, 2, 39, 2),
    Sketcher.Constraint("Tangent", 39, 1, 36, 2),
    Sketcher.Constraint("Tangent", 40, 1, 41, 2),
    Sketcher.Constraint("Tangent", 41, 1, 42, 1),
    Sketcher.Constraint("Tangent", 42, 2, 43, 2),
    Sketcher.Constraint("Tangent", 43, 1, 40, 2),
    Sketcher.Constraint("Tangent", 44, 1, 45, 1),
    Sketcher.Constraint("Tangent", 45, 2, 46, 2),
    Sketcher.Constraint("Tangent", 46, 1, 47, 2),
    Sketcher.Constraint("Tangent", 47, 1, 44, 2),
    Sketcher.Constraint("Coincident", 4, 3, 2, 3),
    Sketcher.Constraint("Coincident", 5, 3, 1, 3),
    Sketcher.Constraint("Coincident", 8, 3, 6, 3),
    Sketcher.Constraint("Coincident", 9, 3, 1, 3),
    Sketcher.Constraint("Coincident", 12, 3, 10, 3),
    Sketcher.Constraint("Coincident", 13, 3, 1, 3),
    Sketcher.Constraint("Coincident", 16, 3, 14, 3),
    Sketcher.Constraint("Coincident", 17, 3, 1, 3),
    Sketcher.Constraint("Coincident", 20, 3, 18, 3),
    Sketcher.Constraint("Coincident", 21, 3, 1, 3),
    Sketcher.Constraint("Coincident", 28, 3, 24, 3),
    Sketcher.Constraint("Coincident", 31, 3, 25, 3),
    Sketcher.Constraint("Coincident", 32, 3, 24, 3),
    Sketcher.Constraint("Coincident", 35, 3, 29, 3),
    Sketcher.Constraint("Coincident", 36, 3, 24, 3),
    Sketcher.Constraint("Coincident", 39, 3, 33, 3),
    Sketcher.Constraint("Coincident", 40, 3, 24, 3),
    Sketcher.Constraint("Coincident", 43, 3, 37, 3),
    Sketcher.Constraint("Coincident", 46, 3, 41, 3),
    Sketcher.Constraint("Coincident", 47, 3, 24, 3),
    Sketcher.Constraint("Equal", 2, 4),
    Sketcher.Constraint("Equal", 4, 6),
    Sketcher.Constraint("Equal", 3, 7),
    Sketcher.Constraint("Equal", 6, 8),
    Sketcher.Constraint("Equal", 8, 10),
    Sketcher.Constraint("Equal", 7, 11),
    Sketcher.Constraint("Equal", 10, 12),
    Sketcher.Constraint("Equal", 12, 14),
    Sketcher.Constraint("Equal", 11, 15),
    Sketcher.Constraint("Equal", 14, 16),
    Sketcher.Constraint("Equal", 16, 18),
    Sketcher.Constraint("Equal", 15, 19),
    Sketcher.Constraint("Equal", 18, 20),
    Sketcher.Constraint("Equal", 19, 23),
    Sketcher.Constraint("Equal", 21, 24),
    Sketcher.Constraint("Equal", 20, 25),
    Sketcher.Constraint("Equal", 23, 26),
    Sketcher.Constraint("Equal", 22, 27),
    Sketcher.Constraint("Equal", 24, 28),
    Sketcher.Constraint("Equal", 25, 29),
    Sketcher.Constraint("Equal", 26, 30),
    Sketcher.Constraint("Equal", 28, 32),
    Sketcher.Constraint("Equal", 31, 33),
    Sketcher.Constraint("Equal", 30, 34),
    Sketcher.Constraint("Equal", 32, 36),
    Sketcher.Constraint("Equal", 35, 37),
    Sketcher.Constraint("Equal", 34, 38),
    Sketcher.Constraint("Equal", 36, 40),
    Sketcher.Constraint("Equal", 39, 41),
    Sketcher.Constraint("Equal", 38, 42),
    Sketcher.Constraint("Equal", 0, 44),
    Sketcher.Constraint("Equal", 42, 45),
    Sketcher.Constraint("Equal", 43, 46),
    Sketcher.Constraint("Symmetric", 1, 3, 24, 3, -2),
    Sketcher.Constraint("Symmetric", 23, 3, 26, 3, -2),
    Sketcher.Constraint("Symmetric", 15, 3, 34, 3, -2),
    Sketcher.Constraint("Symmetric", 7, 3, 42, 3, -2),
    Sketcher.Constraint("Horizontal", 0, 3, 44, 3),
    Sketcher.Constraint("Vertical", 0, 1, 21, 1),
    Sketcher.Constraint("Radius", 3, Q("0.5 mm")),
    Sketcher.Constraint("Radius", 2, Q("0.460828 mm")),
    Sketcher.Constraint("Radius", 22, Q("0.19745 mm")),
    Sketcher.Constraint("DistanceY", -1, 1, 0, 3, Q("5.451 mm")),
    Sketcher.Constraint("Radius", 0, Q("0.291505 mm")),
    Sketcher.Constraint("Radius", 1, Q("10.757423 mm")),
    Sketcher.Constraint("DistanceY", 13, 1, -1, 1, Q("1.015399 mm")),
    Sketcher.Constraint("DistanceX", 15, 2, -1, 1, Q("6.276598 mm")),
    Sketcher.Constraint("DistanceX", 3, 3, -1, 1, Q("7.270949 mm")),
    Sketcher.Constraint("DistanceX", 7, 3, -1, 1, Q("6.776841 mm")),
    Sketcher.Constraint("DistanceX", 10, 3, -1, 1, Q("6.03922 mm")),
    Sketcher.Constraint("DistanceY", -1, 1, 11, 3, Q("1.454452 mm")),
    Sketcher.Constraint("DistanceX", 18, 3, -1, 1, Q("6.57393 mm")),
])
sketch6.setExpression("Constraints[107]", "Params.sketch6_radius")
pocket3 = doc.addObject("PartDesign::Pocket", "Pocket002")
body.addObject(pocket3)
pocket3.Profile = sketch6
pocket3.Type = "ThroughAll"

doc.recompute()
